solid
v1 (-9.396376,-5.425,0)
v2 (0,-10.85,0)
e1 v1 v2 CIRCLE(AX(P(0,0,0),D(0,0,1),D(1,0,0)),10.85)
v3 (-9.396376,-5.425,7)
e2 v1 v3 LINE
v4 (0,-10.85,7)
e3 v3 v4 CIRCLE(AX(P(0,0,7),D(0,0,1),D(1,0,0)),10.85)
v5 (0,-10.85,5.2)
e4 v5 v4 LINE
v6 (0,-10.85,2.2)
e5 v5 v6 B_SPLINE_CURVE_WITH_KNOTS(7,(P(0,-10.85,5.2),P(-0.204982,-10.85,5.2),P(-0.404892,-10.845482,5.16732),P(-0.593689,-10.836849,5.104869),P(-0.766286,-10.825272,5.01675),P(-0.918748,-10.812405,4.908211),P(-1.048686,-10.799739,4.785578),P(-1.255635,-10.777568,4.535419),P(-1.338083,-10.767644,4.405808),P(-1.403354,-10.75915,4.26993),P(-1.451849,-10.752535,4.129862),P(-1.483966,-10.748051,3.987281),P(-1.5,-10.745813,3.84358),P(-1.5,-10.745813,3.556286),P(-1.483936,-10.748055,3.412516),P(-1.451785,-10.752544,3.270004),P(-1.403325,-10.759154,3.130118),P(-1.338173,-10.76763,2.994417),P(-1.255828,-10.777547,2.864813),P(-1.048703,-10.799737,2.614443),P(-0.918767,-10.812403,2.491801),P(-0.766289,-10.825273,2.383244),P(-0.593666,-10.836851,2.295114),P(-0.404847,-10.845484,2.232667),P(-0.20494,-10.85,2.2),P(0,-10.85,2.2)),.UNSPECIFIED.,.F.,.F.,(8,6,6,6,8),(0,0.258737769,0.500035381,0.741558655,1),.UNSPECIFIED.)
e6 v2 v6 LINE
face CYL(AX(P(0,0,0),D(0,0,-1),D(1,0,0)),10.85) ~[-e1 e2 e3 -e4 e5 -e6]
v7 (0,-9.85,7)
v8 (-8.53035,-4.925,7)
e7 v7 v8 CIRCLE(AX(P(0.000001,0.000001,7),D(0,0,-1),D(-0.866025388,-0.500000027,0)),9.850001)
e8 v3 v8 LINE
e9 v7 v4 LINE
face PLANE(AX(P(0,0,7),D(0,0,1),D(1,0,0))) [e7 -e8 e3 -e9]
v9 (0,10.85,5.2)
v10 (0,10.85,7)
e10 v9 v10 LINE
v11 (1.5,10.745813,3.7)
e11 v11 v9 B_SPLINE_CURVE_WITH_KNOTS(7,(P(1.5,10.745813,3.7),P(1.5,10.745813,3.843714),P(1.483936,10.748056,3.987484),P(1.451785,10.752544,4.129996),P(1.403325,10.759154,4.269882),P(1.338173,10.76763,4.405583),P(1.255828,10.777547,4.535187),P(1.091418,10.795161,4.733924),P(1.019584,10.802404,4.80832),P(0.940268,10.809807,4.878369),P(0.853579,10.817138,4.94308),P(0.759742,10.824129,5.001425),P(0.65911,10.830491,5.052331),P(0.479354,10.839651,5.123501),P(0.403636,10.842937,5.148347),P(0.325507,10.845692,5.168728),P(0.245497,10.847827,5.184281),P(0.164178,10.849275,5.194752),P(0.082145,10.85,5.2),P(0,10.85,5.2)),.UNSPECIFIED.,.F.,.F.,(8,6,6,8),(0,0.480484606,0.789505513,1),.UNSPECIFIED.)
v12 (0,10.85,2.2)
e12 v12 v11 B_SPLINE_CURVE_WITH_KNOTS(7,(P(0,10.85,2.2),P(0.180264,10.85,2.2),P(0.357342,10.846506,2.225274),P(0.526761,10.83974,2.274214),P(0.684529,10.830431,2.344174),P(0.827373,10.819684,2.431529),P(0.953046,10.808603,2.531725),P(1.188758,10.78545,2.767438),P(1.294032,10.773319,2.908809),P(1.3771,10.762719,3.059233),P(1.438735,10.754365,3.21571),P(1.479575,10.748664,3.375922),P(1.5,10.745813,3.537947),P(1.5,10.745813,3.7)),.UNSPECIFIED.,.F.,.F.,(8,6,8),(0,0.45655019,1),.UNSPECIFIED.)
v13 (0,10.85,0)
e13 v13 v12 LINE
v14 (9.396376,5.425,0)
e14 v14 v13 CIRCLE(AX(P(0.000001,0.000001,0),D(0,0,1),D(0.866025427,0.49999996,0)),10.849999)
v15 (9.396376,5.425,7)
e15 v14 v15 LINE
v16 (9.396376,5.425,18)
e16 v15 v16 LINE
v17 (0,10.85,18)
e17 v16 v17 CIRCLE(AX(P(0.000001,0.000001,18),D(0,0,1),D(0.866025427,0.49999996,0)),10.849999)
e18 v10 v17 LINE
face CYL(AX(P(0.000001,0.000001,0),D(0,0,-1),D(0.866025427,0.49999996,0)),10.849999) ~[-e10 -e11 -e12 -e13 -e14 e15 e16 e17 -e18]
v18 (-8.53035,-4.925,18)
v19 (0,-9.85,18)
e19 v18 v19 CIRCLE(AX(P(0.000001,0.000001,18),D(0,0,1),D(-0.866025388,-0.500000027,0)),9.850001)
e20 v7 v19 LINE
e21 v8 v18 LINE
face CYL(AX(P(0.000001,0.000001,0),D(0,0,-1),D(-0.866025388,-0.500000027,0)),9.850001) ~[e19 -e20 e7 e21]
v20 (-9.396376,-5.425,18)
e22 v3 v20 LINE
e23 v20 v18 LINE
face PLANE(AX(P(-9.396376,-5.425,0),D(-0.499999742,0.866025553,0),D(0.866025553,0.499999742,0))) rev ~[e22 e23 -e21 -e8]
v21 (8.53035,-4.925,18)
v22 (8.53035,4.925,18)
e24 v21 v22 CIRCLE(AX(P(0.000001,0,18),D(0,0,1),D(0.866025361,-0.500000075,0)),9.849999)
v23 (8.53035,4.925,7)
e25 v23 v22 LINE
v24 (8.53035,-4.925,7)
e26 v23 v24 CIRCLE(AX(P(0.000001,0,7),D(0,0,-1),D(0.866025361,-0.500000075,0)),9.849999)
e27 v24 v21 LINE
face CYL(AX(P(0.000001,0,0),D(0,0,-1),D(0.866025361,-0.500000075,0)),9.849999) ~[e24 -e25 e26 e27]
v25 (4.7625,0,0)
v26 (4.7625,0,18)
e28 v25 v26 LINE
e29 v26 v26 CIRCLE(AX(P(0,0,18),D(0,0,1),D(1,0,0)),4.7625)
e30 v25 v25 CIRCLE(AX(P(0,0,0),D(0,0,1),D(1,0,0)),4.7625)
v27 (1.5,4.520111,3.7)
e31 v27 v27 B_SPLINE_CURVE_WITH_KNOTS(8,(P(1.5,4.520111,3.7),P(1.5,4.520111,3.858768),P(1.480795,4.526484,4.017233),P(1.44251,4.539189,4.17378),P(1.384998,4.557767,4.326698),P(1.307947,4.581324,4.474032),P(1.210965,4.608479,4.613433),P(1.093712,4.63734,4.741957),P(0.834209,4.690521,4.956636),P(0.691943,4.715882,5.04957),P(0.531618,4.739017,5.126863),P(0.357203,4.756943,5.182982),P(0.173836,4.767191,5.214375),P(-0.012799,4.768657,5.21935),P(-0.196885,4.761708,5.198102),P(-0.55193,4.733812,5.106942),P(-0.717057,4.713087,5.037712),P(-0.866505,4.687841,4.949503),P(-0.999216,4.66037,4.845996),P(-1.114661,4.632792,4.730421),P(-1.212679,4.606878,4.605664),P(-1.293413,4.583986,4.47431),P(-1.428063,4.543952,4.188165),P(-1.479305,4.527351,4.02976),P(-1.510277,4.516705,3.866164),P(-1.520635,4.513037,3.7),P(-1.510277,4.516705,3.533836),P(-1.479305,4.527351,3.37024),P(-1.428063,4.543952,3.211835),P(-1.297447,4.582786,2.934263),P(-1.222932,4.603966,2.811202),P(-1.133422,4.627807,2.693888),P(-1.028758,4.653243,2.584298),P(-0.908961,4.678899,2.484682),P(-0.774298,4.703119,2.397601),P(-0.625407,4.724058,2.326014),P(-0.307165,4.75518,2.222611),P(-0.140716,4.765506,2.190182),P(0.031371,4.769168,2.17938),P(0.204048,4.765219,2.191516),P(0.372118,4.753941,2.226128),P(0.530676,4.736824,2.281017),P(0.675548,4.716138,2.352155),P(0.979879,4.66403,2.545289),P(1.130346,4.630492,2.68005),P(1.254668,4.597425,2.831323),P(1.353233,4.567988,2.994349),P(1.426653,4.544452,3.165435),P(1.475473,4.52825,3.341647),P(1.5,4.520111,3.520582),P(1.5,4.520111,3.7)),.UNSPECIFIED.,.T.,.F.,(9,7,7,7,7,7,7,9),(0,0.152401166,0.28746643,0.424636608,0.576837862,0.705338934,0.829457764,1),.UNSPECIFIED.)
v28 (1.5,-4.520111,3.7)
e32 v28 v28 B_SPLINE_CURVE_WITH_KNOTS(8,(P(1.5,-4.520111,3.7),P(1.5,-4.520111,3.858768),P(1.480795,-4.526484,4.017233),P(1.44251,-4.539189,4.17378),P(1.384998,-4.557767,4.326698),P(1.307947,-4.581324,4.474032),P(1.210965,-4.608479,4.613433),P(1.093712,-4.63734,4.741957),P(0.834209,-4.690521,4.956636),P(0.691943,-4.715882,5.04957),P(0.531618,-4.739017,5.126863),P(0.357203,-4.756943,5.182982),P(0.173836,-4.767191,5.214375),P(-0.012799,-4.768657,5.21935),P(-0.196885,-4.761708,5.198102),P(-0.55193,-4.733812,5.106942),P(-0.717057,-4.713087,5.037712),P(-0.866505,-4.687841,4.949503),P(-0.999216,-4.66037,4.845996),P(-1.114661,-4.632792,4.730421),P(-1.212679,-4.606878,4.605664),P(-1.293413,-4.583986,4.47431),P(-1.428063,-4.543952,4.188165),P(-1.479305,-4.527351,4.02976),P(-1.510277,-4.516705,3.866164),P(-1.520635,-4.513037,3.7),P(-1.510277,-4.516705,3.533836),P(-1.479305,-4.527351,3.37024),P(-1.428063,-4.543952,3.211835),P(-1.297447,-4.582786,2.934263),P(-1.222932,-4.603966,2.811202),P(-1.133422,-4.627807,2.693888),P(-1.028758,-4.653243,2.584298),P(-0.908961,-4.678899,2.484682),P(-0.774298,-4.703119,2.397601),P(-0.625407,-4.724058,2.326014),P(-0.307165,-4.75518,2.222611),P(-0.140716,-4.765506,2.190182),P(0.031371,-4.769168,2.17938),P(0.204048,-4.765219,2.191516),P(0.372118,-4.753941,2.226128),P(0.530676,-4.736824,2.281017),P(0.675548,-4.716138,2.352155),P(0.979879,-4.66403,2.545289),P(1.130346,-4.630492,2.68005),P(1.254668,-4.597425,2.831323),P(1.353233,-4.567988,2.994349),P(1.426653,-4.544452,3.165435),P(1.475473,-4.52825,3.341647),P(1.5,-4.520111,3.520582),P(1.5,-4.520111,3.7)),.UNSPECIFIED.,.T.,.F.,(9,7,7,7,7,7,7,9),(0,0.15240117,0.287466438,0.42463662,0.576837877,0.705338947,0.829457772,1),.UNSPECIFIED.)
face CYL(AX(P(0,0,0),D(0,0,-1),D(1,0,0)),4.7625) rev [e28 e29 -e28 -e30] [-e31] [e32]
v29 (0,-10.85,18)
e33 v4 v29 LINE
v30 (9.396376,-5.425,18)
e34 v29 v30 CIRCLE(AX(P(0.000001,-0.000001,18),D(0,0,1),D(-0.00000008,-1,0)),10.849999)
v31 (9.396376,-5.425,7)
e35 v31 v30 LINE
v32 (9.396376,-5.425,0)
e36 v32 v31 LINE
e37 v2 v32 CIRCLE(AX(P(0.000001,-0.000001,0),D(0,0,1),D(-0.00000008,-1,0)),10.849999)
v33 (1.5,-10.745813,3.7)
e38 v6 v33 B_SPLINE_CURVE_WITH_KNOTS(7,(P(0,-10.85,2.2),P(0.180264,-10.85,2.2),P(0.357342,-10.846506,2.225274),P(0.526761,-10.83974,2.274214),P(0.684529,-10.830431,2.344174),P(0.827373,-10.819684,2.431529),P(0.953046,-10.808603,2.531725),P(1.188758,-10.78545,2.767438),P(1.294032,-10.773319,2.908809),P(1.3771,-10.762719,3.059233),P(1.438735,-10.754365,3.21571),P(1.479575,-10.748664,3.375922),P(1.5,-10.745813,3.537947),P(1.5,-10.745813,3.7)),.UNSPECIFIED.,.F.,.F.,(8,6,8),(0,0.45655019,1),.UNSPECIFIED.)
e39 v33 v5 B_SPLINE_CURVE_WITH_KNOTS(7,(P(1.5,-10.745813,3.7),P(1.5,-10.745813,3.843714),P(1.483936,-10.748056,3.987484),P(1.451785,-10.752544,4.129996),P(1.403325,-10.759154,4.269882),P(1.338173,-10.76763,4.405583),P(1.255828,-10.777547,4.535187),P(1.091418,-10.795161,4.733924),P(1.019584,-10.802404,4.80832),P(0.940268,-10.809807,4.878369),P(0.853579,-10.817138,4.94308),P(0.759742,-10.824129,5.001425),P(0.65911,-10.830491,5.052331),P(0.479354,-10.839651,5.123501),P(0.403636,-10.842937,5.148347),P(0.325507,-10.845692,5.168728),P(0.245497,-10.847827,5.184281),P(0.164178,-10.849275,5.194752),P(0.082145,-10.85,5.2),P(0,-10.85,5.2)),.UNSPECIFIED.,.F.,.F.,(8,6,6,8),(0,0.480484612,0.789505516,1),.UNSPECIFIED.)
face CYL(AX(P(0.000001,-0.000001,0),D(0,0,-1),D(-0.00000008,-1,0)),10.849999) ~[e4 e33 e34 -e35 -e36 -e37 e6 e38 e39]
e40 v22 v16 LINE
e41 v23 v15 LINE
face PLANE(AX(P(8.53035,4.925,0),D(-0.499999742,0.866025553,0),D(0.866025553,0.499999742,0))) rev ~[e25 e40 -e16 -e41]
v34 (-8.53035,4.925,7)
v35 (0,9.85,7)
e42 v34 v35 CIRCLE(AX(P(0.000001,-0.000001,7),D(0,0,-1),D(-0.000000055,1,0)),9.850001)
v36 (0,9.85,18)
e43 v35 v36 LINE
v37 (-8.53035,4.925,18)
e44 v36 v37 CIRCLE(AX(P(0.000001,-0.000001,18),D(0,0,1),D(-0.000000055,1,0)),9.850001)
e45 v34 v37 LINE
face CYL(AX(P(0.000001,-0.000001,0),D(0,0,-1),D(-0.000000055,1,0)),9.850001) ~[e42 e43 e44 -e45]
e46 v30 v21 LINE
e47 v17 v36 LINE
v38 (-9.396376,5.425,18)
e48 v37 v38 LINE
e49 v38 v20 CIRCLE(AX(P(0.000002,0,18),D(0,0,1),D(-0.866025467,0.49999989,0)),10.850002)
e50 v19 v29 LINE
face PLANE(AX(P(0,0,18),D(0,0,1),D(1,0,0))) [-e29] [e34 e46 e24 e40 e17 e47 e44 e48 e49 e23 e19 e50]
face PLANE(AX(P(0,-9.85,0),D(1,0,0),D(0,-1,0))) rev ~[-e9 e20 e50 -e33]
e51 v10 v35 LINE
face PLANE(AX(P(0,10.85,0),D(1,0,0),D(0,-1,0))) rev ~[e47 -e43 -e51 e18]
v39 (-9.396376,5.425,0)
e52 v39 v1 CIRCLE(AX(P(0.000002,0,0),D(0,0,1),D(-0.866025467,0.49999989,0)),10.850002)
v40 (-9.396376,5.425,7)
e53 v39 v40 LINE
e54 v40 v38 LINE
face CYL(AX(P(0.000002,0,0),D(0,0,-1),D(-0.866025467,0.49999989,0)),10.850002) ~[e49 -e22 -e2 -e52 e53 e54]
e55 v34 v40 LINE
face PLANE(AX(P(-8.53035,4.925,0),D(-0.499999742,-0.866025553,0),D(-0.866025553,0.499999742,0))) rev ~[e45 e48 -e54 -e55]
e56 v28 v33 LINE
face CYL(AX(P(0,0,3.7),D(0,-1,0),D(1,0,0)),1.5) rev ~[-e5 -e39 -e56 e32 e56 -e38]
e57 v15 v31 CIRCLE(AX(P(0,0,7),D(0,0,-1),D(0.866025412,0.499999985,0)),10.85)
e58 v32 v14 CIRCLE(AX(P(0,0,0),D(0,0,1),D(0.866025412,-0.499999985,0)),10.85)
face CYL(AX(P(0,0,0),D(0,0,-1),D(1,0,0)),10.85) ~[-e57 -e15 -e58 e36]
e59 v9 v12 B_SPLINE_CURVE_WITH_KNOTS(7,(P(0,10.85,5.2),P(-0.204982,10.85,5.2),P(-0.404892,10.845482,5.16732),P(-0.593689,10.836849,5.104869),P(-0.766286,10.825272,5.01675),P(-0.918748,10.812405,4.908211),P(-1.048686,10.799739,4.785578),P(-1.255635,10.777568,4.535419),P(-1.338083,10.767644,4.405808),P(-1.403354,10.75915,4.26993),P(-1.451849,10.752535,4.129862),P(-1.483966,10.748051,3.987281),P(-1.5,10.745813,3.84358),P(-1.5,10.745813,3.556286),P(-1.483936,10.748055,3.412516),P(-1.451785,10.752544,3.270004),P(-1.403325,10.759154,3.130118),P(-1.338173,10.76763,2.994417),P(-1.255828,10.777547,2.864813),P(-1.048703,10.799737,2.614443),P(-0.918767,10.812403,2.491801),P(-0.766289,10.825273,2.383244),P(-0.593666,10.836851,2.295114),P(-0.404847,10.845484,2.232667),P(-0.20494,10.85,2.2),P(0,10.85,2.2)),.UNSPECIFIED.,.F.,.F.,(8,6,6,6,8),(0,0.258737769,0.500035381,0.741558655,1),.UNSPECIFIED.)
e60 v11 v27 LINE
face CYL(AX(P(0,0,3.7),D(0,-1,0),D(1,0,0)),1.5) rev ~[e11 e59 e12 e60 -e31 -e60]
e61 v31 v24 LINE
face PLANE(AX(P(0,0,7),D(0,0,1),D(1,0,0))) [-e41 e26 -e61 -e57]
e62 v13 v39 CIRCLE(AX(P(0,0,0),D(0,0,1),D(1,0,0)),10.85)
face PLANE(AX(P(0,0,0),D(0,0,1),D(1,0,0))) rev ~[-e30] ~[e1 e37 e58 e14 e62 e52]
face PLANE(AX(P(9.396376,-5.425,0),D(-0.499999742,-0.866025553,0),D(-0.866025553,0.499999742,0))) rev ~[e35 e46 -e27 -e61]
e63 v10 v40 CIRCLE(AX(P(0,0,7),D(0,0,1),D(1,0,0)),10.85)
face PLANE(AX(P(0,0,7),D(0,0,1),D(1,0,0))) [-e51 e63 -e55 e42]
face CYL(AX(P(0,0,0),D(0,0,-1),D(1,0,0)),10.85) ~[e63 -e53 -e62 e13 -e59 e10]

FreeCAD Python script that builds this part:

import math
import FreeCAD as App
import Part
import Sketcher
from FreeCAD import Vector
Q = App.Units.Quantity

doc = App.newDocument("Part")
body = doc.addObject("PartDesign::Body", "Body")

# Sketch on XY plane
sketch1 = body.newObject("Sketcher::SketchObject", "Sketch")
sketch1.AttachmentSupport = (doc.getObject("XY_Plane"), [""])
sketch1.MapMode = "FlatFace"
sketch1.addGeometry([
    Part.LineSegment(Vector(0, 10.85, 0), Vector(0, 9.85, 0)),  # 0
    Part.ArcOfCircle(Part.Circle(Vector(0.000001, -0.000001, 0), Vector(0, 0, 1), 9.850001), math.radians(90.000003), math.radians(149.999998)),  # 1
    Part.LineSegment(Vector(-8.53035, 4.925, 0), Vector(-9.396376, 5.425, 0)),  # 2
    Part.ArcOfCircle(Part.Circle(Vector(0.000002, 0, 0), Vector(0, 0, 1), 10.850002), math.radians(150.000007), math.radians(209.999993)),  # 3
    Part.LineSegment(Vector(-9.396376, -5.425, 0), Vector(-8.53035, -4.925, 0)),  # 4
    Part.ArcOfCircle(Part.Circle(Vector(0.000001, 0.000001, 0), Vector(0, 0, 1), 9.850001), math.radians(-149.999998), math.radians(-90.000003)),  # 5
    Part.LineSegment(Vector(0, -9.85, 0), Vector(0, -10.85, 0)),  # 6
    Part.ArcOfCircle(Part.Circle(Vector(0.000001, -0.000001, 0), Vector(0, 0, 1), 10.849999), math.radians(-90.000005), math.radians(-29.999997)),  # 7
    Part.LineSegment(Vector(9.396376, -5.425, 0), Vector(8.53035, -4.925, 0)),  # 8
    Part.ArcOfCircle(Part.Circle(Vector(0.000001, 0, 0), Vector(0, 0, 1), 9.849999), math.radians(-30.000005), math.radians(30.000005)),  # 9
    Part.LineSegment(Vector(8.53035, 4.925, 0), Vector(9.396376, 5.425, 0)),  # 10
    Part.ArcOfCircle(Part.Circle(Vector(0.000001, 0.000001, 0), Vector(0, 0, 1), 10.849999), math.radians(29.999997), math.radians(90.000005)),  # 11
    Part.Circle(Vector(0, 0, 0), Vector(0, 0, 1), 4.7625),  # 12
], False)
sketch1.addConstraint([
    Sketcher.Constraint("Coincident", 0, 2, 1, 1),
    Sketcher.Constraint("Coincident", 1, 2, 2, 1),
    Sketcher.Constraint("Coincident", 2, 2, 3, 1),
    Sketcher.Constraint("Coincident", 3, 2, 4, 1),
    Sketcher.Constraint("Coincident", 4, 2, 5, 1),
    Sketcher.Constraint("Coincident", 5, 2, 6, 1),
    Sketcher.Constraint("Coincident", 6, 2, 7, 1),
    Sketcher.Constraint("Coincident", 7, 2, 8, 1),
    Sketcher.Constraint("Coincident", 8, 2, 9, 1),
    Sketcher.Constraint("Coincident", 9, 2, 10, 1),
    Sketcher.Constraint("Coincident", 10, 2, 11, 1),
    Sketcher.Constraint("Coincident", 11, 2, 0, 1),
    Sketcher.Constraint("Vertical", 0),
    Sketcher.Constraint("Vertical", 6),
    Sketcher.Constraint("Coincident", 1, 3, -1, 1),
    Sketcher.Constraint("Coincident", 3, 3, -1, 1),
    Sketcher.Constraint("Coincident", 5, 3, -1, 1),
    Sketcher.Constraint("Coincident", 7, 3, -1, 1),
    Sketcher.Constraint("Coincident", 9, 3, -1, 1),
    Sketcher.Constraint("Coincident", 11, 3, -1, 1),
    Sketcher.Constraint("Coincident", 12, 3, -1, 1),
    Sketcher.Constraint("Equal", 1, 5),
    Sketcher.Constraint("Equal", 7, 11),
    Sketcher.Constraint("Symmetric", 2, 2, 7, 2, -1, 1),
    Sketcher.Constraint("Symmetric", 1, 2, 8, 2, -1, 1),
    Sketcher.Constraint("PointOnObject", 0, 2, -2),
    Sketcher.Constraint("PointOnObject", 5, 2, -2),
    Sketcher.Constraint("Parallel", 4, 10),
    Sketcher.Constraint("Horizontal", 3, 2, 7, 2),
    Sketcher.Constraint("Horizontal", 4, 2, 8, 2),
    Sketcher.Constraint("Horizontal", 1, 2, 9, 2),
    Sketcher.Constraint("DistanceY", 0, 2, 0, 1, Q("1 mm")),
    Sketcher.Constraint("Angle", 2, Q("150.000017 deg")),
    Sketcher.Constraint("Radius", 1, Q("9.850001 mm")),
    Sketcher.Constraint("Diameter", 12, Q("9.525 mm")),
    Sketcher.Constraint("DistanceY", 3, 2, 1, 2, Q("10.35 mm")),
])
pad1 = body.newObject("PartDesign::Pad", "Pad")
pad1.Profile = sketch1
pad1.Length = 18

# Sketch on XY plane
sketch2 = body.newObject("Sketcher::SketchObject", "Sketch001")
sketch2.AttachmentSupport = (doc.getObject("XY_Plane"), [""])
sketch2.MapMode = "FlatFace"
sketch2.addGeometry([
    Part.Circle(Vector(0, 0, 0), Vector(0, 0, 1), 10.85),
    Part.Circle(Vector(0, 0, 0), Vector(0, 0, 1), 4.7625),
], False)
sketch2.addConstraint([
    Sketcher.Constraint("Coincident", 0, 3, -1, 1),
    Sketcher.Constraint("Coincident", 1, 3, -1, 1),
    Sketcher.Constraint("Diameter", 0, Q("21.7 mm")),
    Sketcher.Constraint("Diameter", 1, Q("9.525 mm")),
])
pad2 = body.newObject("PartDesign::Pad", "Pad001")
pad2.Profile = sketch2
pad2.Length = 7

# Sketch on XZ plane
sketch3 = body.newObject("Sketcher::SketchObject", "Sketch002")
sketch3.AttachmentSupport = (doc.getObject("XZ_Plane"), [""])
sketch3.MapMode = "FlatFace"
sketch3.addGeometry(Part.Circle(Vector(0, 3.7, 0), Vector(0, 0, 1), 1.5), False)
sketch3.addConstraint([
    Sketcher.Constraint("PointOnObject", 0, 3, -2),
    Sketcher.Constraint("Diameter", 0, Q("3 mm")),
    Sketcher.Constraint("DistanceY", -1, 1, 0, 3, Q("3.7 mm")),
])
pocket1 = body.newObject("PartDesign::Pocket", "Pocket")
pocket1.Profile = sketch3
pocket1.Length = 25
pocket1.Midplane = True

doc.recompute()
